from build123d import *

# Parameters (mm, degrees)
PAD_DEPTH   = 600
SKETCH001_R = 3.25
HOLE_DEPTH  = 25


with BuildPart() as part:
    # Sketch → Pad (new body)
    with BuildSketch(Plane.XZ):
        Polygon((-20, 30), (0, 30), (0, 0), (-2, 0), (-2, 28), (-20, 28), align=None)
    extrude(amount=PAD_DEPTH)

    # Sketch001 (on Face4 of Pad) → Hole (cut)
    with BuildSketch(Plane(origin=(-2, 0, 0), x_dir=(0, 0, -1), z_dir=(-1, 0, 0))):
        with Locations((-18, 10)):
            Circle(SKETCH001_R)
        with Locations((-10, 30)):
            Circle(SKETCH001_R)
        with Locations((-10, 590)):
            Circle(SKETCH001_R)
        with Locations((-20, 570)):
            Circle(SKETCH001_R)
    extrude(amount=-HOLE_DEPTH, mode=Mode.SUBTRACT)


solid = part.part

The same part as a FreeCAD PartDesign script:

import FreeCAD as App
import Part
import Sketcher

V = App.Vector
Q = App.Units.Quantity


def add_polygon(sketch, points):
    """Adds a closed chain of lines whose ends are joined by coincident constraints."""
    first, n = sketch.GeometryCount, len(points)
    for a, b in zip(points, points[1:] + points[:1]):
        sketch.addGeometry(Part.LineSegment(App.Vector(*a, 0), App.Vector(*b, 0)), False)
    for i in range(n):
        sketch.addConstraint(Sketcher.Constraint("Coincident", first + i, 2, first + (i + 1) % n, 1))

doc = App.newDocument("Part")
body = doc.addObject("PartDesign::Body", "Body")

# Sketch on XZ plane
sketch1 = body.newObject("Sketcher::SketchObject", "Sketch")
sketch1.AttachmentSupport = (doc.getObject("XZ_Plane"), [""])
sketch1.MapMode = "FlatFace"
add_polygon(sketch1, [(0, 30), (-20, 30), (-20, 28), (-2, 28), (-2, 0), (0, 0)])  # lines 0-5
sketch1.addConstraint([
    Sketcher.Constraint("Horizontal", 0),
    Sketcher.Constraint("Vertical", 1),
    Sketcher.Constraint("Horizontal", 2),
    Sketcher.Constraint("Vertical", 3),
    Sketcher.Constraint("Horizontal", 4),
    Sketcher.Constraint("Vertical", 5),
    Sketcher.Constraint("Coincident", 4, 2, -1, 1),
    Sketcher.Constraint("Equal", 4, 1),
    Sketcher.Constraint("DistanceX", 0, 2, 0, 1, Q("20 mm")),
    Sketcher.Constraint("DistanceX", 2, 1, 2, 2, Q("18 mm")),
    Sketcher.Constraint("DistanceY", 3, 2, 3, 1, Q("28 mm")),
])
pad1 = body.newObject("PartDesign::Pad", "Pad")
pad1.Profile = sketch1
pad1.Length = 600

# Sketch on YZ plane
sketch2 = body.newObject("Sketcher::SketchObject", "Sketch001")
sketch2.AttachmentSupport = (doc.getObject("YZ_Plane"), [""])
sketch2.MapMode = "FlatFace"
sketch2.AttachmentOffset = App.Placement(V(0, 0, -2), App.Rotation())
sketch2.addGeometry([
    Part.Circle(V(-10, 18, 0), V(0, 0, 1), 3.2),
    Part.Circle(V(-30, 10, 0), V(0, 0, 1), 3.2),
    Part.Circle(V(-590, 10, 0), V(0, 0, 1), 3.2),
    Part.Circle(V(-570, 20, 0), V(0, 0, 1), 3.2),
], False)
sketch2.addConstraint([
    Sketcher.Constraint("Equal", 0, 1),
    Sketcher.Constraint("Equal", 1, 2),
    Sketcher.Constraint("Equal", 2, 3),
    Sketcher.Constraint("Horizontal", 1, 3, 2, 3),
    Sketcher.Constraint("Diameter", 0, Q("6.5 mm")),
    Sketcher.Constraint("DistanceX", 0, 3, -1, 1, Q("10 mm")),
    Sketcher.Constraint("DistanceY", -1, 1, 0, 3, Q("18 mm")),
    Sketcher.Constraint("DistanceX", 1, 3, -1, 1, Q("30 mm")),
    Sketcher.Constraint("DistanceY", -1, 1, 1, 3, Q("10 mm")),
    Sketcher.Constraint("DistanceX", 2, 3, -1, 1, Q("590 mm")),
    Sketcher.Constraint("DistanceX", 3, 3, -1, 1, Q("570 mm")),
    Sketcher.Constraint("DistanceY", -1, 1, 3, 3, Q("20 mm")),
])
pocket1 = body.newObject("PartDesign::Pocket", "Pocket")
pocket1.Profile = sketch2
pocket1.Length = 25
pocket1.Reversed = True

doc.recompute()
